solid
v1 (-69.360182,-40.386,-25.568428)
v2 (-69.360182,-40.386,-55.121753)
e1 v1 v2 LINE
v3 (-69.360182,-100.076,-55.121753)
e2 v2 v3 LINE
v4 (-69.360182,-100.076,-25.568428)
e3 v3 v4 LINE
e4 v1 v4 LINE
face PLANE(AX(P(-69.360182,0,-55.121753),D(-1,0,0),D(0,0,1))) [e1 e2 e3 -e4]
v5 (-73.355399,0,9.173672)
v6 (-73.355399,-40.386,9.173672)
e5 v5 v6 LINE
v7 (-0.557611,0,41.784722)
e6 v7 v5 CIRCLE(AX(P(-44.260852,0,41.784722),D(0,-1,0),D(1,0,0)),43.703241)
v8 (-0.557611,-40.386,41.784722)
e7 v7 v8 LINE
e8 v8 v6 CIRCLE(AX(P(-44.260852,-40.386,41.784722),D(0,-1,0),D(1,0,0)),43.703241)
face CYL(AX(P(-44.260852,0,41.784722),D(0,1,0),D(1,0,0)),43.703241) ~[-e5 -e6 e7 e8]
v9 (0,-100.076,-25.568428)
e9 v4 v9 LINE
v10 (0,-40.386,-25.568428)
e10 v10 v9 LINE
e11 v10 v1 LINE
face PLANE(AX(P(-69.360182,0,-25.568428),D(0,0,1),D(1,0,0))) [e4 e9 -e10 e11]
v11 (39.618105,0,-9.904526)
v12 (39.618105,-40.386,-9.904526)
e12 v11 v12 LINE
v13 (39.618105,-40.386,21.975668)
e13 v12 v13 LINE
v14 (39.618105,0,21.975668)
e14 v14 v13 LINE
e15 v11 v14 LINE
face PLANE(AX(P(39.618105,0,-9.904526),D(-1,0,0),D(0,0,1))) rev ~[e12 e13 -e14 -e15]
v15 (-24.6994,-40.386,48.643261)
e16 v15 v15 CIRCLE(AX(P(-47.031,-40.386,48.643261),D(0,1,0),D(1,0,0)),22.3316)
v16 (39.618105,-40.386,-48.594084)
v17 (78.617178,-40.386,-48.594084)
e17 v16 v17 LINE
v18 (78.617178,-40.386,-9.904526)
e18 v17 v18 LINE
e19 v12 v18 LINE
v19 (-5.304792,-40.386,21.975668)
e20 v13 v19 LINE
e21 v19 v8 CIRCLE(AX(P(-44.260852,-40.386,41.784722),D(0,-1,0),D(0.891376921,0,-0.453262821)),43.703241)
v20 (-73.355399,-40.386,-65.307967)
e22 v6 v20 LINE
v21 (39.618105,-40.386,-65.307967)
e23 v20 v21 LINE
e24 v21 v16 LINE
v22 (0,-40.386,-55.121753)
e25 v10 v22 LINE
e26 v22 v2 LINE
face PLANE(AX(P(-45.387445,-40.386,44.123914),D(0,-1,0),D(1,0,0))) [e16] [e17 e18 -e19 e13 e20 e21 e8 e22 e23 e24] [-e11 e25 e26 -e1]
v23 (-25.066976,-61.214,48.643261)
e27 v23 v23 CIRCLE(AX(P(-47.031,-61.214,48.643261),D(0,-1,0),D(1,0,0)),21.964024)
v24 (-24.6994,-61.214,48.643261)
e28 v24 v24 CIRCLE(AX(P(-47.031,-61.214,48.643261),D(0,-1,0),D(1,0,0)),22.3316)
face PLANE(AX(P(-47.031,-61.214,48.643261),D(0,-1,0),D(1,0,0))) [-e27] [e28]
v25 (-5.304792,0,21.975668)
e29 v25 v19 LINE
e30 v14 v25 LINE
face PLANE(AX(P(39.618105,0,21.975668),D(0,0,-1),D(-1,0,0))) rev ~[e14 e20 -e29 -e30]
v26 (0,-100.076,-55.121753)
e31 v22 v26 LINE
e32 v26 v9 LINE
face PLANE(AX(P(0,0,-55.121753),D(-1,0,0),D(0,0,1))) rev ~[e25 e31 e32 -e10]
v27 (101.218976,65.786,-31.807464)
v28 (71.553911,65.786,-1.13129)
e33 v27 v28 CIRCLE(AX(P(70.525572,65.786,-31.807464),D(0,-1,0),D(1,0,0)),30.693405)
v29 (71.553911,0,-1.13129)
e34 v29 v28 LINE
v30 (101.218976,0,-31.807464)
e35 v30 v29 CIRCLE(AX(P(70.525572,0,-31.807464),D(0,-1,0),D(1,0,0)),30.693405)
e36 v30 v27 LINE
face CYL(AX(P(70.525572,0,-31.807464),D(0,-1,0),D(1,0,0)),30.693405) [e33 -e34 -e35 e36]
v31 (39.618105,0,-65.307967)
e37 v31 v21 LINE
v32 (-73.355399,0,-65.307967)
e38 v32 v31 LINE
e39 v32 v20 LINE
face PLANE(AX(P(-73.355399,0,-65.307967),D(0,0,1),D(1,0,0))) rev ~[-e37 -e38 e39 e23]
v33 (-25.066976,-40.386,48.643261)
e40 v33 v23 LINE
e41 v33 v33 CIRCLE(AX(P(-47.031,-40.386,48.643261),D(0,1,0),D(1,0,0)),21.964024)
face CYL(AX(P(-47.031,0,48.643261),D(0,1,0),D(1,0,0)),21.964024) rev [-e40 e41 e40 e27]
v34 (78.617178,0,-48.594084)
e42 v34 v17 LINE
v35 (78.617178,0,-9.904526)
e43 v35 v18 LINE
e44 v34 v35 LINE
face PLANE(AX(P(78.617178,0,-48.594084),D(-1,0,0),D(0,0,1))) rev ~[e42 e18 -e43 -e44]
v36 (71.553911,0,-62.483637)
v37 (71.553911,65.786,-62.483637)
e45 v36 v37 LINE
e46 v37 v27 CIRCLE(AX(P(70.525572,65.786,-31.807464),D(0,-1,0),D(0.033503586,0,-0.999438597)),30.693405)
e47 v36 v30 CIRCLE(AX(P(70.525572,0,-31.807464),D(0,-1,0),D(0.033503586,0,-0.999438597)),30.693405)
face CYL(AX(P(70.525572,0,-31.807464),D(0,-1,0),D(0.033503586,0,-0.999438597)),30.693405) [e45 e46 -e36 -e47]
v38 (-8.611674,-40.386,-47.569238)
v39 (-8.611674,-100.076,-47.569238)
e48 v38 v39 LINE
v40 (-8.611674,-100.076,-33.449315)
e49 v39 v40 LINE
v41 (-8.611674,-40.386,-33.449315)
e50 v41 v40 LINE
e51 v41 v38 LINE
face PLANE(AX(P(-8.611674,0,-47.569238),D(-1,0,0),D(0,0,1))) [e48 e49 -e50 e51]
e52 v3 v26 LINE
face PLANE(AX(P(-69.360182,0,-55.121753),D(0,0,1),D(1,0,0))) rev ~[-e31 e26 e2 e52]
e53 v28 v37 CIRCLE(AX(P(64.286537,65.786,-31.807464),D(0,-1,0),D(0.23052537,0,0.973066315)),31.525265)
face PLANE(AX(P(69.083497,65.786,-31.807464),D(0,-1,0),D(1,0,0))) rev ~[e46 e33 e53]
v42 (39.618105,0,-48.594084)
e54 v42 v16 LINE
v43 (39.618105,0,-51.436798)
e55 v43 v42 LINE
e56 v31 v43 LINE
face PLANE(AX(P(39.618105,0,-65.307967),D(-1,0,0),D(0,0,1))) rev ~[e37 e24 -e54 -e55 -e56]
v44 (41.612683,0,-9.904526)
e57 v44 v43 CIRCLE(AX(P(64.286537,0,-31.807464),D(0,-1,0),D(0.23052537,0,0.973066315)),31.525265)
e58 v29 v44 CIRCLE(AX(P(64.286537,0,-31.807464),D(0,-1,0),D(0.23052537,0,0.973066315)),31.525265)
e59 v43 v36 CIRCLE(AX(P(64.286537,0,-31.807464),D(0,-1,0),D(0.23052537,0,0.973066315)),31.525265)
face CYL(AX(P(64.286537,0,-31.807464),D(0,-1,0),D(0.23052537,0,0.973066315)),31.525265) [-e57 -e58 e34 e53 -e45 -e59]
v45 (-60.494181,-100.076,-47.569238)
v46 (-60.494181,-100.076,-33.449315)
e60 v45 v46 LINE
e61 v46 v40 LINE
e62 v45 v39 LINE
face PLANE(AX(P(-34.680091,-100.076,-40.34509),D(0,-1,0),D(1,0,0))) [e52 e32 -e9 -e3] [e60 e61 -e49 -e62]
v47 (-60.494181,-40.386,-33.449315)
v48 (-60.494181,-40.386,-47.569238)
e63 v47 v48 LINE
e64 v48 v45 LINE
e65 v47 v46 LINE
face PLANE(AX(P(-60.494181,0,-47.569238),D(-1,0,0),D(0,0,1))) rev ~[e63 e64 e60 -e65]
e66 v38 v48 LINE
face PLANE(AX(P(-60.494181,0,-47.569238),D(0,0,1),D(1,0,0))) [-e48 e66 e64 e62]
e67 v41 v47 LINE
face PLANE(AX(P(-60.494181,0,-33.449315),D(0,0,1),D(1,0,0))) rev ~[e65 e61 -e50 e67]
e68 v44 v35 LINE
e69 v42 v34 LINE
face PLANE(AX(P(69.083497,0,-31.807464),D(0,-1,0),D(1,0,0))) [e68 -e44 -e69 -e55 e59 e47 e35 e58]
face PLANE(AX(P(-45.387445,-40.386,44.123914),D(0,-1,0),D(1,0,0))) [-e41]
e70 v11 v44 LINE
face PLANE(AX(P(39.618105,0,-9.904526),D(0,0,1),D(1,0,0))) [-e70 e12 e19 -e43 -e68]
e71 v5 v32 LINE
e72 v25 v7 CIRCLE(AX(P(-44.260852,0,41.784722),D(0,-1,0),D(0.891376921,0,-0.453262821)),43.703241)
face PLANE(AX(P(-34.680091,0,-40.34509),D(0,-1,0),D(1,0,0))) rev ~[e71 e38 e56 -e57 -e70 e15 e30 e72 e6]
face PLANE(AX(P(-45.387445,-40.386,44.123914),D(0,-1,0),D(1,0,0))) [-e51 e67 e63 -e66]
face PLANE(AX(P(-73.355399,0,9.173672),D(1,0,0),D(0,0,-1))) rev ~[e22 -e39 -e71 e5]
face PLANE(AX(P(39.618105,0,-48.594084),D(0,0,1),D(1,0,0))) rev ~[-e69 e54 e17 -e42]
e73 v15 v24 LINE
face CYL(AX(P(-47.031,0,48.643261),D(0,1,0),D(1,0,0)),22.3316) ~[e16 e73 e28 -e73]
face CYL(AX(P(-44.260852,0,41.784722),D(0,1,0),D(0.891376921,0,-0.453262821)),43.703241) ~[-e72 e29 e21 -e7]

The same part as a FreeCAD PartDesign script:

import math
import FreeCAD as App
import Part
import Sketcher

V = App.Vector
Q = App.Units.Quantity

doc = App.newDocument("Part")
body = doc.addObject("PartDesign::Body", "Body")

sketch1 = body.newObject("Sketcher::SketchObject", "Sketch")
sketch1.AttachmentSupport = (doc.getObject("XZ_Plane"), [""])
sketch1.MapMode = "FlatFace"
sketch1.addGeometry([
    Part.ArcOfCircle(Part.Circle(V(-44, 42, 0), V(0, 0, 1), 44), math.radians(-27), math.radians(0)),
    Part.ArcOfCircle(Part.Circle(V(-44, 42, 0), V(0, 0, 1), 44), math.radians(0), math.radians(228)),
    Part.LineSegment(V(-73, 9, 0), V(-73, -65, 0)),
    Part.LineSegment(V(-73, -65, 0), V(40, -65, 0)),
    Part.LineSegment(V(40, -65, 0), V(40, -49, 0)),
    Part.LineSegment(V(40, -49, 0), V(79, -49, 0)),
    Part.LineSegment(V(79, -49, 0), V(79, -10, 0)),
    Part.LineSegment(V(79, -10, 0), V(40, -10, 0)),
    Part.LineSegment(V(40, -10, 0), V(40, 22, 0)),
    Part.LineSegment(V(40, 22, 0), V(-5, 22, 0)),
], False)
sketch1.addConstraint([
    Sketcher.Constraint("Tangent", 0, 2, 1, 1),
    Sketcher.Constraint("Coincident", 1, 2, 2, 1),
    Sketcher.Constraint("Coincident", 2, 2, 3, 1),
    Sketcher.Constraint("Coincident", 3, 2, 4, 1),
    Sketcher.Constraint("Coincident", 4, 2, 5, 1),
    Sketcher.Constraint("Coincident", 5, 2, 6, 1),
    Sketcher.Constraint("Coincident", 6, 2, 7, 1),
    Sketcher.Constraint("Coincident", 7, 2, 8, 1),
    Sketcher.Constraint("Coincident", 8, 2, 9, 1),
    Sketcher.Constraint("Coincident", 9, 2, 0, 1),
    Sketcher.Constraint("Vertical", 2),
    Sketcher.Constraint("Horizontal", 3),
    Sketcher.Constraint("Vertical", 4),
    Sketcher.Constraint("Horizontal", 5),
    Sketcher.Constraint("Vertical", 6),
    Sketcher.Constraint("Horizontal", 7),
    Sketcher.Constraint("Vertical", 8),
    Sketcher.Constraint("Horizontal", 9),
    Sketcher.Constraint("Equal", 0, 1),
    Sketcher.Constraint("Horizontal", 1, 3, 0, 2),
    Sketcher.Constraint("Vertical", 4, 2, 7, 2),
    Sketcher.Constraint("Radius", 0, Q("1.7206 in")),
    Sketcher.Constraint("DistanceY", 2, 2, 2, 1, Q("74.48164 mm")),
    Sketcher.Constraint("DistanceX", 1, 2, -1, 1, Q("73.355399 mm")),
    Sketcher.Constraint("DistanceX", 3, 1, 3, 2, Q("112.973504 mm")),
    Sketcher.Constraint("DistanceX", 5, 1, 5, 2, Q("38.999073 mm")),
    Sketcher.Constraint("DistanceX", 9, 2, 9, 1, Q("44.922897 mm")),
    Sketcher.Constraint("DistanceY", 4, 1, 4, 2, Q("16.713884 mm")),
    Sketcher.Constraint("DistanceY", 6, 1, 6, 2, Q("38.689557 mm")),
    Sketcher.Constraint("DistanceY", 8, 1, 8, 2, Q("31.880194 mm")),
    Sketcher.Constraint("DistanceY", -1, 1, 8, 2, Q("21.975668 mm")),
])
pad1 = body.newObject("PartDesign::Pad", "Pad")
pad1.Profile = sketch1
pad1.Length = Q("1.59 in")

sketch2 = body.newObject("Sketcher::SketchObject", "Sketch001")
sketch2.AttachmentSupport = (doc.getObject("XZ_Plane"), [""])
sketch2.MapMode = "FlatFace"
sketch2.addGeometry([
    Part.Circle(V(-47, 49, 0), V(0, 0, 1), 22),
    Part.Circle(V(-47, 49, 0), V(0, 0, 1), 22),
], False)
sketch2.addConstraint([
    Sketcher.Constraint("Coincident", 1, 3, 0, 3),
    Sketcher.Constraint("Diameter", 0, Q("44.6632 mm")),
    Sketcher.Constraint("Diameter", 1, Q("43.928048 mm")),
    Sketcher.Constraint("DistanceX", 0, 3, -1, 1, Q("47.031 mm")),
    Sketcher.Constraint("DistanceY", -1, 1, 0, 3, Q("48.643261 mm")),
])
pad2 = body.newObject("PartDesign::Pad", "Pad001")
pad2.Profile = sketch2
pad2.Length = Q("2.41 in")

sketch3 = body.newObject("Sketcher::SketchObject", "Sketch002")
sketch3.AttachmentSupport = (doc.getObject("XZ_Plane"), [""])
sketch3.MapMode = "FlatFace"
sketch3.addGeometry([
    Part.LineSegment(V(-69, -26, 0), V(-69, -55, 0)),
    Part.LineSegment(V(-69, -55, 0), V(0, -55, 0)),
    Part.LineSegment(V(0, -55, 0), V(0, -26, 0)),
    Part.LineSegment(V(0, -26, 0), V(-69, -26, 0)),
    Part.LineSegment(V(-9, -48, 0), V(-60, -48, 0)),
    Part.LineSegment(V(-60, -48, 0), V(-60, -33, 0)),
    Part.LineSegment(V(-60, -33, 0), V(-9, -33, 0)),
    Part.LineSegment(V(-9, -33, 0), V(-9, -48, 0)),
], False)
sketch3.addConstraint([
    Sketcher.Constraint("Coincident", 0, 2, 1, 1),
    Sketcher.Constraint("Coincident", 1, 2, 2, 1),
    Sketcher.Constraint("Coincident", 2, 2, 3, 1),
    Sketcher.Constraint("Coincident", 3, 2, 0, 1),
    Sketcher.Constraint("Coincident", 4, 2, 5, 1),
    Sketcher.Constraint("Coincident", 5, 2, 6, 1),
    Sketcher.Constraint("Coincident", 6, 2, 7, 1),
    Sketcher.Constraint("Coincident", 7, 2, 4, 1),
    Sketcher.Constraint("Vertical", 0),
    Sketcher.Constraint("Horizontal", 1),
    Sketcher.Constraint("Vertical", 2),
    Sketcher.Constraint("Horizontal", 3),
    Sketcher.Constraint("Horizontal", 4),
    Sketcher.Constraint("Vertical", 5),
    Sketcher.Constraint("Horizontal", 6),
    Sketcher.Constraint("Vertical", 7),
    Sketcher.Constraint("PointOnObject", 1, 2, -2),
    Sketcher.Constraint("DistanceX", 1, 1, 1, 2, Q("69.360182 mm")),
    Sketcher.Constraint("DistanceX", 0, 2, 4, 2, Q("8.866001 mm")),
    Sketcher.Constraint("DistanceX", 4, 2, 4, 1, Q("51.882506 mm")),
    Sketcher.Constraint("DistanceY", 0, 2, 0, 1, Q("29.553326 mm")),
    Sketcher.Constraint("DistanceY", 5, 1, 5, 2, Q("14.119923 mm")),
    Sketcher.Constraint("DistanceY", 4, 2, 3, 2, Q("22.00081 mm")),
    Sketcher.Constraint("DistanceY", 0, 2, -1, 1, Q("55.121753 mm")),
])
pad3 = body.newObject("PartDesign::Pad", "Pad002")
pad3.Profile = sketch3
pad3.Length = Q("3.94 in")

sketch4 = body.newObject("Sketcher::SketchObject", "Sketch003")
sketch4.AttachmentSupport = (doc.getObject("XZ_Plane"), [""])
sketch4.MapMode = "FlatFace"
sketch4.addGeometry([
    Part.ArcOfCircle(Part.Circle(V(71, -32, 0), V(0, 0, 1), 31), math.radians(-88), math.radians(0)),
    Part.ArcOfCircle(Part.Circle(V(71, -32, 0), V(0, 0, 1), 31), math.radians(0), math.radians(88)),
    Part.ArcOfCircle(Part.Circle(V(64, -32, 0), V(0, 0, 1), 32), math.radians(77), math.radians(283)),
], False)
sketch4.addConstraint([
    Sketcher.Constraint("Tangent", 0, 2, 1, 1),
    Sketcher.Constraint("Coincident", 1, 2, 2, 1),
    Sketcher.Constraint("Coincident", 2, 2, 0, 1),
    Sketcher.Constraint("Equal", 0, 1),
    Sketcher.Constraint("Horizontal", 1, 3, 2, 3),
    Sketcher.Constraint("Horizontal", 2, 3, 0, 2),
    Sketcher.Constraint("Radius", 0, Q("30.693405 mm")),
    Sketcher.Constraint("Radius", 2, Q("31.525265 mm")),
    Sketcher.Constraint("DistanceX", -1, 1, 0, 3, Q("70.525572 mm")),
    Sketcher.Constraint("DistanceX", -1, 1, 1, 2, Q("71.553911 mm")),
    Sketcher.Constraint("DistanceY", 1, 2, -1, 1, Q("1.13129 mm")),
])
pad4 = body.newObject("PartDesign::Pad", "Pad003")
pad4.Profile = sketch4
pad4.Length = Q("2.59 in")
pad4.Reversed = True

doc.recompute()
